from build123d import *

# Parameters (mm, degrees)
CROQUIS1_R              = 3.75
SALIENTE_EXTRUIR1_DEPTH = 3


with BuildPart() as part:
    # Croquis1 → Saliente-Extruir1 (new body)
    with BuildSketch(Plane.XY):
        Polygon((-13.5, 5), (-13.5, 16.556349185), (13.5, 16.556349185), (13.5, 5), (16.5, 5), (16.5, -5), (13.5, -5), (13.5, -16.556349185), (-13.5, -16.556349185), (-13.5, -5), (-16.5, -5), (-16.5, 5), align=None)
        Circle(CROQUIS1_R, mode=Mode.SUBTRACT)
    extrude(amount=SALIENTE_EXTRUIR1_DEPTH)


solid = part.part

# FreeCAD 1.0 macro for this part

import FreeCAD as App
import Part
import Sketcher

V = App.Vector


def add_polygon(sketch, points):
    """Adds a closed chain of lines whose ends are joined by coincident constraints."""
    first, n = sketch.GeometryCount, len(points)
    for a, b in zip(points, points[1:] + points[:1]):
        sketch.addGeometry(Part.LineSegment(App.Vector(*a, 0), App.Vector(*b, 0)), False)
    for i in range(n):
        sketch.addConstraint(Sketcher.Constraint("Coincident", first + i, 2, first + (i + 1) % n, 1))

doc = App.newDocument("Part")
params = doc.addObject("Spreadsheet::Sheet", "Params")
for row, (alias, value) in enumerate([
    ("sketch1_diameter", "7.5 mm"),
    ("sketch1_width", "3 mm"),
    ("sketch1_width2", "27 mm"),
    ("sketch1_height", "10 mm"),
    ("pad1_length", "3 mm"),
], start=1):
    params.set(f"A{row}", alias)
    params.set(f"B{row}", "=" + value)
    params.setAlias(f"B{row}", alias)

body = doc.addObject("PartDesign::Body", "Body")

# Sketch on XY plane
sketch1 = body.newObject("Sketcher::SketchObject", "Sketch")
sketch1.AttachmentSupport = (doc.getObject("XY_Plane"), [""])
sketch1.MapMode = "FlatFace"
add_polygon(sketch1, [(-13.5, 16.6), (-13.5, 5), (-16.5, 5), (-16.5, -5), (-13.5, -5), (-13.5, -16.6), (13.5, -16.6), (13.5, -5), (16.5, -5), (16.5, 5), (13.5, 5), (13.5, 16.6)])  # lines 0-11
sketch1.addGeometry(Part.Circle(V(0, 0, 0), V(0, 0, 1), 3.8), False)  # 12
sketch1.addConstraint(Sketcher.Constraint("Vertical", 0))
sketch1.addConstraint(Sketcher.Constraint("Horizontal", 1))
sketch1.addConstraint(Sketcher.Constraint("Vertical", 2))
sketch1.addConstraint(Sketcher.Constraint("Horizontal", 3))
sketch1.addConstraint(Sketcher.Constraint("Vertical", 4))
sketch1.addConstraint(Sketcher.Constraint("Horizontal", 5))
sketch1.addConstraint(Sketcher.Constraint("Vertical", 6))
sketch1.addConstraint(Sketcher.Constraint("Horizontal", 7))
sketch1.addConstraint(Sketcher.Constraint("Vertical", 8))
sketch1.addConstraint(Sketcher.Constraint("Horizontal", 9))
sketch1.addConstraint(Sketcher.Constraint("Vertical", 10))
sketch1.addConstraint(Sketcher.Constraint("Horizontal", 11))
sketch1.addConstraint(Sketcher.Constraint("Coincident", 12, 3, -1, 1))
sketch1.addConstraint(Sketcher.Constraint("Symmetric", 0, 2, 6, 2, -1, 1))
sketch1.addConstraint(Sketcher.Constraint("Symmetric", 2, 2, 8, 2, -1, 1))
sketch1.addConstraint(Sketcher.Constraint("Symmetric", 4, 2, 10, 2, -1, 1))
sketch1.addConstraint(Sketcher.Constraint("Symmetric", 3, 2, 6, 2, -2))
sketch1.addConstraint(Sketcher.Constraint("Diameter", 12, 7.5))
sketch1.addConstraint(Sketcher.Constraint("DistanceX", 1, 2, 1, 1, 3.0))
sketch1.addConstraint(Sketcher.Constraint("DistanceX", 5, 1, 5, 2, 27.0))
sketch1.addConstraint(Sketcher.Constraint("DistanceY", 2, 2, 2, 1, 10.0))
sketch1.addConstraint(Sketcher.Constraint("DistanceY", 0, 2, 0, 1, 11.556349))
sketch1.setExpression("Constraints[29]", "Params.sketch1_diameter")
sketch1.setExpression("Constraints[30]", "Params.sketch1_width")
sketch1.setExpression("Constraints[31]", "Params.sketch1_width2")
sketch1.setExpression("Constraints[32]", "Params.sketch1_height")
pad1 = body.newObject("PartDesign::Pad", "Pad")
pad1.Profile = sketch1
pad1.setExpression("Length", "Params.pad1_length")

doc.recompute()
